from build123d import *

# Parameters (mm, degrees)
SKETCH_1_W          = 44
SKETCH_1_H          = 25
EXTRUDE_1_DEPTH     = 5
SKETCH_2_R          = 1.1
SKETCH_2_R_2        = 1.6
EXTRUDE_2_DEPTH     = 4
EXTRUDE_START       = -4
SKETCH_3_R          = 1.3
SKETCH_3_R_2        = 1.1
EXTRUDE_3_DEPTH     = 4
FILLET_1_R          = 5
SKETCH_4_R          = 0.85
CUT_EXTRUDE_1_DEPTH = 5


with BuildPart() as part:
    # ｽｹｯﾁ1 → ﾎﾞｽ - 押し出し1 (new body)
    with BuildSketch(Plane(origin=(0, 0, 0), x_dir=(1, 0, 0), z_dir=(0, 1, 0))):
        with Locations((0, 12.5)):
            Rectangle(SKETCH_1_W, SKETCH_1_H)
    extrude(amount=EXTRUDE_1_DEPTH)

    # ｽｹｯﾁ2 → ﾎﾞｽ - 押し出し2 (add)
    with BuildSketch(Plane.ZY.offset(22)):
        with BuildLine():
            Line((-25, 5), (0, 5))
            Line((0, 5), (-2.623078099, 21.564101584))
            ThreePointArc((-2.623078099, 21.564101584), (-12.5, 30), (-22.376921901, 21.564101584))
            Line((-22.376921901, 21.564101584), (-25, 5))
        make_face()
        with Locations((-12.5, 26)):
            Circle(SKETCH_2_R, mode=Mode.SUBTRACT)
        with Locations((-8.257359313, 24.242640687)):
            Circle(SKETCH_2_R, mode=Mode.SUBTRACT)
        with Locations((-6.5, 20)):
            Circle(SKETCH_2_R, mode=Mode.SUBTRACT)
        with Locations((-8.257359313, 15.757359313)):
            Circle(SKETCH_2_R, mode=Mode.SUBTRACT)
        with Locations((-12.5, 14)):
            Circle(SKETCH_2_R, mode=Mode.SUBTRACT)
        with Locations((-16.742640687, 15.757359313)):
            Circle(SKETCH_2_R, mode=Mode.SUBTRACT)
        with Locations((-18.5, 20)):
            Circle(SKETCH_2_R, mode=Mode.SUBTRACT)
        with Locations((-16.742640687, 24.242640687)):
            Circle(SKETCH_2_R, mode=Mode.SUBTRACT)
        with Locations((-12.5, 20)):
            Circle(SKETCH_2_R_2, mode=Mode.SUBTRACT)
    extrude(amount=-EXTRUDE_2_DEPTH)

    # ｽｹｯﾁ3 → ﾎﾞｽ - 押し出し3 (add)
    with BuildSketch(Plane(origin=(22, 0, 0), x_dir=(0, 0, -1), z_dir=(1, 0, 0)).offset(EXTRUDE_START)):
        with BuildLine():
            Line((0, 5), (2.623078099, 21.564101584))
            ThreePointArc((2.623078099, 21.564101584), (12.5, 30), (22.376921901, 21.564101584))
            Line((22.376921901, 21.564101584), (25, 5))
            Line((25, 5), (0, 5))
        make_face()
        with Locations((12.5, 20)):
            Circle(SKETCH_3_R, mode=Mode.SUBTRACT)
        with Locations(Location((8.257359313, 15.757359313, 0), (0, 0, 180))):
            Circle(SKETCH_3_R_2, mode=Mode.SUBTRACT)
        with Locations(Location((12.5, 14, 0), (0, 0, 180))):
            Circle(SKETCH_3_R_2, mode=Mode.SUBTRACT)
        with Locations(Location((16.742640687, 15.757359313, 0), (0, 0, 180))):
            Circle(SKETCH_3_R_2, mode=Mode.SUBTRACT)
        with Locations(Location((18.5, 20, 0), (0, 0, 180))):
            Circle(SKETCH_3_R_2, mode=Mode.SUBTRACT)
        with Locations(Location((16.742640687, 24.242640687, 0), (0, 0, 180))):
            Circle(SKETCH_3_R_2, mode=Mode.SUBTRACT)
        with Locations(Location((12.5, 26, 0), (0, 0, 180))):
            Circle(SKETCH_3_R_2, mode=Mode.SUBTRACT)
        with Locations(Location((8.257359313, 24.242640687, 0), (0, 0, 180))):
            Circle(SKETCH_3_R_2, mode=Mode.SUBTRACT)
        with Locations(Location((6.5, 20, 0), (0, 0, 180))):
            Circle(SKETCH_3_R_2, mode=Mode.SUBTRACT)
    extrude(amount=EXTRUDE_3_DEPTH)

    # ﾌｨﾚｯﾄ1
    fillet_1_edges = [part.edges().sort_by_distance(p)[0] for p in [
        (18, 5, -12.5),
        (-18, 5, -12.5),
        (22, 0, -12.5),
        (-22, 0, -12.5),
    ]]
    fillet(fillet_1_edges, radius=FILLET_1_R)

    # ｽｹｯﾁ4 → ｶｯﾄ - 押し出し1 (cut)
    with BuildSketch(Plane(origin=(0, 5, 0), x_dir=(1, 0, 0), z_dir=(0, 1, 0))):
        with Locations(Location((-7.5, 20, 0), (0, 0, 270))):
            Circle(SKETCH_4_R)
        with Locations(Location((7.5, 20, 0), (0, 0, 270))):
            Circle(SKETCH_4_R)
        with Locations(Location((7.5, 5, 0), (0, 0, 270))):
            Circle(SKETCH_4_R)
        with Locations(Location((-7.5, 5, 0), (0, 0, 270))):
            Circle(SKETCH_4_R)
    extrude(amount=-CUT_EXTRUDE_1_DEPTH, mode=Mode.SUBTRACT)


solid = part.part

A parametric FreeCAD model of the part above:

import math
import FreeCAD as App
import Part
import Sketcher

V = App.Vector


def edges_at(feature, points):
    """Names of the edges that pass closest to the given points."""
    edges = feature.Shape.Edges
    near = lambda p: min(range(len(edges)), key=lambda i: edges[i].distToShape(Part.Vertex(*p))[0])
    return sorted({f"Edge{near(p) + 1}" for p in points})


def add_polygon(sketch, points):
    """Adds a closed chain of lines whose ends are joined by coincident constraints."""
    first, n = sketch.GeometryCount, len(points)
    for a, b in zip(points, points[1:] + points[:1]):
        sketch.addGeometry(Part.LineSegment(App.Vector(*a, 0), App.Vector(*b, 0)), False)
    for i in range(n):
        sketch.addConstraint(Sketcher.Constraint("Coincident", first + i, 2, first + (i + 1) % n, 1))

doc = App.newDocument("Part")
body = doc.addObject("PartDesign::Body", "Body")

sketch1 = body.newObject("Sketcher::SketchObject", "Sketch")
sketch1.AttachmentSupport = (doc.getObject("XZ_Plane"), [""])
sketch1.MapMode = "FlatFace"
add_polygon(sketch1, [(-22, -25), (-22, 0), (22, 0), (22, -25)])
sketch1.addConstraint([
    Sketcher.Constraint("Vertical", 0),
    Sketcher.Constraint("Horizontal", 1),
    Sketcher.Constraint("Vertical", 2),
    Sketcher.Constraint("Horizontal", 3),
    Sketcher.Constraint("Symmetric", 0, 2, 1, 2, -1, 1),
    Sketcher.Constraint("DistanceX", 1, 1, 1, 2, 44.0),
    Sketcher.Constraint("DistanceY", 0, 1, 0, 2, 25.0),
])
pad1 = body.newObject("PartDesign::Pad", "Pad")
pad1.Profile = sketch1
pad1.Length = 5
pad1.Reversed = True

sketch2 = body.newObject("Sketcher::SketchObject", "Sketch001")
sketch2.AttachmentSupport = (doc.getObject("YZ_Plane"), [""])
sketch2.MapMode = "FlatFace"
sketch2.AttachmentOffset = App.Placement(V(0, 0, -22), App.Rotation())
sketch2.addGeometry([
    Part.LineSegment(V(5, -25, 0), V(5, 0, 0)),
    Part.LineSegment(V(5, 0, 0), V(21.6, -2.6, 0)),
    Part.ArcOfCircle(Part.Circle(V(20, -12.5, 0), V(0, 0, 1), 10), math.radians(-81), math.radians(81)),
    Part.LineSegment(V(21.6, -22.4, 0), V(5, -25, 0)),
    Part.Circle(V(15.8, -16.7, 0), V(0, 0, 1), 1.1),
    Part.Circle(V(14, -12.5, 0), V(0, 0, 1), 1.1),
    Part.Circle(V(15.8, -8.3, 0), V(0, 0, 1), 1.1),
    Part.Circle(V(20, -18.5, 0), V(0, 0, 1), 1.1),
    Part.Circle(V(24.2, -16.7, 0), V(0, 0, 1), 1.1),
    Part.Circle(V(20, -12.5, 0), V(0, 0, 1), 1.6),
    Part.Circle(V(20, -6.5, 0), V(0, 0, 1), 1.1),
    Part.Circle(V(26, -12.5, 0), V(0, 0, 1), 1.1),
    Part.Circle(V(24.2, -8.3, 0), V(0, 0, 1), 1.1),
], False)
sketch2.addConstraint([
    Sketcher.Constraint("Coincident", 0, 2, 1, 1),
    Sketcher.Constraint("Tangent", 1, 2, 2, 2),
    Sketcher.Constraint("Tangent", 2, 1, 3, 1),
    Sketcher.Constraint("Coincident", 3, 2, 0, 1),
    Sketcher.Constraint("Vertical", 0),
    Sketcher.Constraint("Coincident", 9, 3, 2, 3),
    Sketcher.Constraint("Equal", 4, 5),
    Sketcher.Constraint("Equal", 5, 6),
    Sketcher.Constraint("Equal", 6, 7),
    Sketcher.Constraint("Equal", 7, 8),
    Sketcher.Constraint("Equal", 8, 10),
    Sketcher.Constraint("Equal", 10, 11),
    Sketcher.Constraint("Equal", 11, 12),
    Sketcher.Constraint("PointOnObject", 0, 2, -1),
    Sketcher.Constraint("Horizontal", 2, 3, 5, 3),
    Sketcher.Constraint("Horizontal", 4, 3, 8, 3),
    Sketcher.Constraint("Horizontal", 9, 3, 11, 3),
    Sketcher.Constraint("Horizontal", 6, 3, 12, 3),
    Sketcher.Constraint("Vertical", 4, 3, 6, 3),
    Sketcher.Constraint("Vertical", 2, 3, 7, 3),
    Sketcher.Constraint("Vertical", 9, 3, 10, 3),
    Sketcher.Constraint("Vertical", 8, 3, 12, 3),
    Sketcher.Constraint("Vertical", 1, 2, 2, 1),
    Sketcher.Constraint("Radius", 2, 10.0),
    Sketcher.Constraint("Diameter", 4, 2.2),
    Sketcher.Constraint("Diameter", 9, 3.2),
    Sketcher.Constraint("DistanceY", 0, 1, 0, 2, 25.0),
    Sketcher.Constraint("DistanceX", -1, 1, 2, 3, 20.0),
    Sketcher.Constraint("DistanceX", -1, 1, 5, 3, 14.0),
    Sketcher.Constraint("DistanceX", -1, 1, 11, 3, 26.0),
    Sketcher.Constraint("DistanceX", -1, 1, 0, 2, 5.0),
    Sketcher.Constraint("DistanceY", 7, 3, 2, 3, 6.0),
    Sketcher.Constraint("DistanceY", 2, 3, 10, 3, 6.0),
    Sketcher.Constraint("DistanceX", -1, 1, 4, 3, 15.757359),
    Sketcher.Constraint("DistanceY", 4, 3, -1, 1, 16.742641),
    Sketcher.Constraint("DistanceY", 6, 3, -1, 1, 8.257359),
    Sketcher.Constraint("DistanceX", -1, 1, 8, 3, 24.242641),
])
pad2 = body.newObject("PartDesign::Pad", "Pad001")
pad2.Profile = sketch2
pad2.Length = 4

sketch3 = body.newObject("Sketcher::SketchObject", "Sketch002")
sketch3.AttachmentSupport = (doc.getObject("YZ_Plane"), [""])
sketch3.MapMode = "FlatFace"
sketch3.AttachmentOffset = App.Placement(V(0, 0, 18), App.Rotation())
sketch3.addGeometry([
    Part.LineSegment(V(21.6, -2.6, 0), V(5, 0, 0)),
    Part.LineSegment(V(5, 0, 0), V(5, -25, 0)),
    Part.LineSegment(V(5, -25, 0), V(21.6, -22.4, 0)),
    Part.ArcOfCircle(Part.Circle(V(20, -12.5, 0), V(0, 0, 1), 10), math.radians(-81), math.radians(81)),
    Part.Circle(V(15.8, -16.7, 0), V(0, 0, 1), 1.1),
    Part.Circle(V(14, -12.5, 0), V(0, 0, 1), 1.1),
    Part.Circle(V(15.8, -8.3, 0), V(0, 0, 1), 1.1),
    Part.Circle(V(20, -18.5, 0), V(0, 0, 1), 1.1),
    Part.Circle(V(24.2, -16.7, 0), V(0, 0, 1), 1.1),
    Part.Circle(V(20, -12.5, 0), V(0, 0, 1), 1.3),
    Part.Circle(V(20, -6.5, 0), V(0, 0, 1), 1.1),
    Part.Circle(V(26, -12.5, 0), V(0, 0, 1), 1.1),
    Part.Circle(V(24.2, -8.3, 0), V(0, 0, 1), 1.1),
], False)
sketch3.addConstraint([
    Sketcher.Constraint("Coincident", 0, 2, 1, 1),
    Sketcher.Constraint("Coincident", 1, 2, 2, 1),
    Sketcher.Constraint("Tangent", 2, 2, 3, 1),
    Sketcher.Constraint("Tangent", 3, 2, 0, 1),
    Sketcher.Constraint("Vertical", 1),
    Sketcher.Constraint("Coincident", 9, 3, 3, 3),
    Sketcher.Constraint("Equal", 4, 5),
    Sketcher.Constraint("Equal", 5, 6),
    Sketcher.Constraint("Equal", 6, 7),
    Sketcher.Constraint("Equal", 7, 8),
    Sketcher.Constraint("Equal", 8, 10),
    Sketcher.Constraint("Equal", 10, 11),
    Sketcher.Constraint("Equal", 11, 12),
    Sketcher.Constraint("PointOnObject", 0, 2, -1),
    Sketcher.Constraint("Horizontal", 3, 3, 5, 3),
    Sketcher.Constraint("Horizontal", 4, 3, 8, 3),
    Sketcher.Constraint("Horizontal", 9, 3, 11, 3),
    Sketcher.Constraint("Horizontal", 6, 3, 12, 3),
    Sketcher.Constraint("Vertical", 4, 3, 6, 3),
    Sketcher.Constraint("Vertical", 3, 3, 7, 3),
    Sketcher.Constraint("Vertical", 9, 3, 10, 3),
    Sketcher.Constraint("Vertical", 8, 3, 12, 3),
    Sketcher.Constraint("Vertical", 2, 2, 3, 2),
    Sketcher.Constraint("Radius", 3, 10.0),
    Sketcher.Constraint("Diameter", 4, 2.2),
    Sketcher.Constraint("Diameter", 9, 2.6),
    Sketcher.Constraint("DistanceY", 1, 2, 1, 1, 25.0),
    Sketcher.Constraint("DistanceX", -1, 1, 3, 3, 20.0),
    Sketcher.Constraint("DistanceX", -1, 1, 5, 3, 14.0),
    Sketcher.Constraint("DistanceX", -1, 1, 11, 3, 26.0),
    Sketcher.Constraint("DistanceX", -1, 1, 0, 2, 5.0),
    Sketcher.Constraint("DistanceY", 7, 3, 3, 3, 6.0),
    Sketcher.Constraint("DistanceY", 3, 3, 10, 3, 6.0),
    Sketcher.Constraint("DistanceX", -1, 1, 4, 3, 15.757359),
    Sketcher.Constraint("DistanceY", 4, 3, -1, 1, 16.742641),
    Sketcher.Constraint("DistanceY", 6, 3, -1, 1, 8.257359),
    Sketcher.Constraint("DistanceX", -1, 1, 8, 3, 24.242641),
])
pad3 = body.newObject("PartDesign::Pad", "Pad002")
pad3.Profile = sketch3
pad3.Length = 4
doc.recompute()

fillet = body.newObject("PartDesign::Fillet", "Fillet")
fillet.Base = (pad3, edges_at(pad3, [
    (18, 5, -12.5),
    (-18, 5, -12.5),
    (22, 0, -12.5),
    (-22, 0, -12.5),
]))
fillet.Radius = 5

sketch4 = body.newObject("Sketcher::SketchObject", "Sketch003")
sketch4.AttachmentSupport = (doc.getObject("XZ_Plane"), [""])
sketch4.MapMode = "FlatFace"
sketch4.AttachmentOffset = App.Placement(V(0, 0, -5), App.Rotation())
sketch4.addGeometry([
    Part.Circle(V(-7.5, -20, 0), V(0, 0, 1), 0.8),
    Part.Circle(V(7.5, -20, 0), V(0, 0, 1), 0.8),
    Part.Circle(V(7.5, -5, 0), V(0, 0, 1), 0.8),
    Part.Circle(V(-7.5, -5, 0), V(0, 0, 1), 0.8),
], False)
sketch4.addConstraint([
    Sketcher.Constraint("Equal", 0, 1),
    Sketcher.Constraint("Equal", 1, 2),
    Sketcher.Constraint("Equal", 2, 3),
    Sketcher.Constraint("Symmetric", 0, 3, 1, 3, -2),
    Sketcher.Constraint("Symmetric", 2, 3, 3, 3, -2),
    Sketcher.Constraint("Vertical", 1, 3, 2, 3),
    Sketcher.Constraint("Diameter", 0, 1.7),
    Sketcher.Constraint("DistanceY", 0, 3, -1, 1, 20.0),
    Sketcher.Constraint("DistanceY", 2, 3, -1, 1, 5.0),
    Sketcher.Constraint("DistanceX", 0, 3, 1, 3, 15.0),
])
pocket1 = body.newObject("PartDesign::Pocket", "Pocket")
pocket1.Profile = sketch4
pocket1.Length = 5
pocket1.Reversed = True

doc.recompute()
